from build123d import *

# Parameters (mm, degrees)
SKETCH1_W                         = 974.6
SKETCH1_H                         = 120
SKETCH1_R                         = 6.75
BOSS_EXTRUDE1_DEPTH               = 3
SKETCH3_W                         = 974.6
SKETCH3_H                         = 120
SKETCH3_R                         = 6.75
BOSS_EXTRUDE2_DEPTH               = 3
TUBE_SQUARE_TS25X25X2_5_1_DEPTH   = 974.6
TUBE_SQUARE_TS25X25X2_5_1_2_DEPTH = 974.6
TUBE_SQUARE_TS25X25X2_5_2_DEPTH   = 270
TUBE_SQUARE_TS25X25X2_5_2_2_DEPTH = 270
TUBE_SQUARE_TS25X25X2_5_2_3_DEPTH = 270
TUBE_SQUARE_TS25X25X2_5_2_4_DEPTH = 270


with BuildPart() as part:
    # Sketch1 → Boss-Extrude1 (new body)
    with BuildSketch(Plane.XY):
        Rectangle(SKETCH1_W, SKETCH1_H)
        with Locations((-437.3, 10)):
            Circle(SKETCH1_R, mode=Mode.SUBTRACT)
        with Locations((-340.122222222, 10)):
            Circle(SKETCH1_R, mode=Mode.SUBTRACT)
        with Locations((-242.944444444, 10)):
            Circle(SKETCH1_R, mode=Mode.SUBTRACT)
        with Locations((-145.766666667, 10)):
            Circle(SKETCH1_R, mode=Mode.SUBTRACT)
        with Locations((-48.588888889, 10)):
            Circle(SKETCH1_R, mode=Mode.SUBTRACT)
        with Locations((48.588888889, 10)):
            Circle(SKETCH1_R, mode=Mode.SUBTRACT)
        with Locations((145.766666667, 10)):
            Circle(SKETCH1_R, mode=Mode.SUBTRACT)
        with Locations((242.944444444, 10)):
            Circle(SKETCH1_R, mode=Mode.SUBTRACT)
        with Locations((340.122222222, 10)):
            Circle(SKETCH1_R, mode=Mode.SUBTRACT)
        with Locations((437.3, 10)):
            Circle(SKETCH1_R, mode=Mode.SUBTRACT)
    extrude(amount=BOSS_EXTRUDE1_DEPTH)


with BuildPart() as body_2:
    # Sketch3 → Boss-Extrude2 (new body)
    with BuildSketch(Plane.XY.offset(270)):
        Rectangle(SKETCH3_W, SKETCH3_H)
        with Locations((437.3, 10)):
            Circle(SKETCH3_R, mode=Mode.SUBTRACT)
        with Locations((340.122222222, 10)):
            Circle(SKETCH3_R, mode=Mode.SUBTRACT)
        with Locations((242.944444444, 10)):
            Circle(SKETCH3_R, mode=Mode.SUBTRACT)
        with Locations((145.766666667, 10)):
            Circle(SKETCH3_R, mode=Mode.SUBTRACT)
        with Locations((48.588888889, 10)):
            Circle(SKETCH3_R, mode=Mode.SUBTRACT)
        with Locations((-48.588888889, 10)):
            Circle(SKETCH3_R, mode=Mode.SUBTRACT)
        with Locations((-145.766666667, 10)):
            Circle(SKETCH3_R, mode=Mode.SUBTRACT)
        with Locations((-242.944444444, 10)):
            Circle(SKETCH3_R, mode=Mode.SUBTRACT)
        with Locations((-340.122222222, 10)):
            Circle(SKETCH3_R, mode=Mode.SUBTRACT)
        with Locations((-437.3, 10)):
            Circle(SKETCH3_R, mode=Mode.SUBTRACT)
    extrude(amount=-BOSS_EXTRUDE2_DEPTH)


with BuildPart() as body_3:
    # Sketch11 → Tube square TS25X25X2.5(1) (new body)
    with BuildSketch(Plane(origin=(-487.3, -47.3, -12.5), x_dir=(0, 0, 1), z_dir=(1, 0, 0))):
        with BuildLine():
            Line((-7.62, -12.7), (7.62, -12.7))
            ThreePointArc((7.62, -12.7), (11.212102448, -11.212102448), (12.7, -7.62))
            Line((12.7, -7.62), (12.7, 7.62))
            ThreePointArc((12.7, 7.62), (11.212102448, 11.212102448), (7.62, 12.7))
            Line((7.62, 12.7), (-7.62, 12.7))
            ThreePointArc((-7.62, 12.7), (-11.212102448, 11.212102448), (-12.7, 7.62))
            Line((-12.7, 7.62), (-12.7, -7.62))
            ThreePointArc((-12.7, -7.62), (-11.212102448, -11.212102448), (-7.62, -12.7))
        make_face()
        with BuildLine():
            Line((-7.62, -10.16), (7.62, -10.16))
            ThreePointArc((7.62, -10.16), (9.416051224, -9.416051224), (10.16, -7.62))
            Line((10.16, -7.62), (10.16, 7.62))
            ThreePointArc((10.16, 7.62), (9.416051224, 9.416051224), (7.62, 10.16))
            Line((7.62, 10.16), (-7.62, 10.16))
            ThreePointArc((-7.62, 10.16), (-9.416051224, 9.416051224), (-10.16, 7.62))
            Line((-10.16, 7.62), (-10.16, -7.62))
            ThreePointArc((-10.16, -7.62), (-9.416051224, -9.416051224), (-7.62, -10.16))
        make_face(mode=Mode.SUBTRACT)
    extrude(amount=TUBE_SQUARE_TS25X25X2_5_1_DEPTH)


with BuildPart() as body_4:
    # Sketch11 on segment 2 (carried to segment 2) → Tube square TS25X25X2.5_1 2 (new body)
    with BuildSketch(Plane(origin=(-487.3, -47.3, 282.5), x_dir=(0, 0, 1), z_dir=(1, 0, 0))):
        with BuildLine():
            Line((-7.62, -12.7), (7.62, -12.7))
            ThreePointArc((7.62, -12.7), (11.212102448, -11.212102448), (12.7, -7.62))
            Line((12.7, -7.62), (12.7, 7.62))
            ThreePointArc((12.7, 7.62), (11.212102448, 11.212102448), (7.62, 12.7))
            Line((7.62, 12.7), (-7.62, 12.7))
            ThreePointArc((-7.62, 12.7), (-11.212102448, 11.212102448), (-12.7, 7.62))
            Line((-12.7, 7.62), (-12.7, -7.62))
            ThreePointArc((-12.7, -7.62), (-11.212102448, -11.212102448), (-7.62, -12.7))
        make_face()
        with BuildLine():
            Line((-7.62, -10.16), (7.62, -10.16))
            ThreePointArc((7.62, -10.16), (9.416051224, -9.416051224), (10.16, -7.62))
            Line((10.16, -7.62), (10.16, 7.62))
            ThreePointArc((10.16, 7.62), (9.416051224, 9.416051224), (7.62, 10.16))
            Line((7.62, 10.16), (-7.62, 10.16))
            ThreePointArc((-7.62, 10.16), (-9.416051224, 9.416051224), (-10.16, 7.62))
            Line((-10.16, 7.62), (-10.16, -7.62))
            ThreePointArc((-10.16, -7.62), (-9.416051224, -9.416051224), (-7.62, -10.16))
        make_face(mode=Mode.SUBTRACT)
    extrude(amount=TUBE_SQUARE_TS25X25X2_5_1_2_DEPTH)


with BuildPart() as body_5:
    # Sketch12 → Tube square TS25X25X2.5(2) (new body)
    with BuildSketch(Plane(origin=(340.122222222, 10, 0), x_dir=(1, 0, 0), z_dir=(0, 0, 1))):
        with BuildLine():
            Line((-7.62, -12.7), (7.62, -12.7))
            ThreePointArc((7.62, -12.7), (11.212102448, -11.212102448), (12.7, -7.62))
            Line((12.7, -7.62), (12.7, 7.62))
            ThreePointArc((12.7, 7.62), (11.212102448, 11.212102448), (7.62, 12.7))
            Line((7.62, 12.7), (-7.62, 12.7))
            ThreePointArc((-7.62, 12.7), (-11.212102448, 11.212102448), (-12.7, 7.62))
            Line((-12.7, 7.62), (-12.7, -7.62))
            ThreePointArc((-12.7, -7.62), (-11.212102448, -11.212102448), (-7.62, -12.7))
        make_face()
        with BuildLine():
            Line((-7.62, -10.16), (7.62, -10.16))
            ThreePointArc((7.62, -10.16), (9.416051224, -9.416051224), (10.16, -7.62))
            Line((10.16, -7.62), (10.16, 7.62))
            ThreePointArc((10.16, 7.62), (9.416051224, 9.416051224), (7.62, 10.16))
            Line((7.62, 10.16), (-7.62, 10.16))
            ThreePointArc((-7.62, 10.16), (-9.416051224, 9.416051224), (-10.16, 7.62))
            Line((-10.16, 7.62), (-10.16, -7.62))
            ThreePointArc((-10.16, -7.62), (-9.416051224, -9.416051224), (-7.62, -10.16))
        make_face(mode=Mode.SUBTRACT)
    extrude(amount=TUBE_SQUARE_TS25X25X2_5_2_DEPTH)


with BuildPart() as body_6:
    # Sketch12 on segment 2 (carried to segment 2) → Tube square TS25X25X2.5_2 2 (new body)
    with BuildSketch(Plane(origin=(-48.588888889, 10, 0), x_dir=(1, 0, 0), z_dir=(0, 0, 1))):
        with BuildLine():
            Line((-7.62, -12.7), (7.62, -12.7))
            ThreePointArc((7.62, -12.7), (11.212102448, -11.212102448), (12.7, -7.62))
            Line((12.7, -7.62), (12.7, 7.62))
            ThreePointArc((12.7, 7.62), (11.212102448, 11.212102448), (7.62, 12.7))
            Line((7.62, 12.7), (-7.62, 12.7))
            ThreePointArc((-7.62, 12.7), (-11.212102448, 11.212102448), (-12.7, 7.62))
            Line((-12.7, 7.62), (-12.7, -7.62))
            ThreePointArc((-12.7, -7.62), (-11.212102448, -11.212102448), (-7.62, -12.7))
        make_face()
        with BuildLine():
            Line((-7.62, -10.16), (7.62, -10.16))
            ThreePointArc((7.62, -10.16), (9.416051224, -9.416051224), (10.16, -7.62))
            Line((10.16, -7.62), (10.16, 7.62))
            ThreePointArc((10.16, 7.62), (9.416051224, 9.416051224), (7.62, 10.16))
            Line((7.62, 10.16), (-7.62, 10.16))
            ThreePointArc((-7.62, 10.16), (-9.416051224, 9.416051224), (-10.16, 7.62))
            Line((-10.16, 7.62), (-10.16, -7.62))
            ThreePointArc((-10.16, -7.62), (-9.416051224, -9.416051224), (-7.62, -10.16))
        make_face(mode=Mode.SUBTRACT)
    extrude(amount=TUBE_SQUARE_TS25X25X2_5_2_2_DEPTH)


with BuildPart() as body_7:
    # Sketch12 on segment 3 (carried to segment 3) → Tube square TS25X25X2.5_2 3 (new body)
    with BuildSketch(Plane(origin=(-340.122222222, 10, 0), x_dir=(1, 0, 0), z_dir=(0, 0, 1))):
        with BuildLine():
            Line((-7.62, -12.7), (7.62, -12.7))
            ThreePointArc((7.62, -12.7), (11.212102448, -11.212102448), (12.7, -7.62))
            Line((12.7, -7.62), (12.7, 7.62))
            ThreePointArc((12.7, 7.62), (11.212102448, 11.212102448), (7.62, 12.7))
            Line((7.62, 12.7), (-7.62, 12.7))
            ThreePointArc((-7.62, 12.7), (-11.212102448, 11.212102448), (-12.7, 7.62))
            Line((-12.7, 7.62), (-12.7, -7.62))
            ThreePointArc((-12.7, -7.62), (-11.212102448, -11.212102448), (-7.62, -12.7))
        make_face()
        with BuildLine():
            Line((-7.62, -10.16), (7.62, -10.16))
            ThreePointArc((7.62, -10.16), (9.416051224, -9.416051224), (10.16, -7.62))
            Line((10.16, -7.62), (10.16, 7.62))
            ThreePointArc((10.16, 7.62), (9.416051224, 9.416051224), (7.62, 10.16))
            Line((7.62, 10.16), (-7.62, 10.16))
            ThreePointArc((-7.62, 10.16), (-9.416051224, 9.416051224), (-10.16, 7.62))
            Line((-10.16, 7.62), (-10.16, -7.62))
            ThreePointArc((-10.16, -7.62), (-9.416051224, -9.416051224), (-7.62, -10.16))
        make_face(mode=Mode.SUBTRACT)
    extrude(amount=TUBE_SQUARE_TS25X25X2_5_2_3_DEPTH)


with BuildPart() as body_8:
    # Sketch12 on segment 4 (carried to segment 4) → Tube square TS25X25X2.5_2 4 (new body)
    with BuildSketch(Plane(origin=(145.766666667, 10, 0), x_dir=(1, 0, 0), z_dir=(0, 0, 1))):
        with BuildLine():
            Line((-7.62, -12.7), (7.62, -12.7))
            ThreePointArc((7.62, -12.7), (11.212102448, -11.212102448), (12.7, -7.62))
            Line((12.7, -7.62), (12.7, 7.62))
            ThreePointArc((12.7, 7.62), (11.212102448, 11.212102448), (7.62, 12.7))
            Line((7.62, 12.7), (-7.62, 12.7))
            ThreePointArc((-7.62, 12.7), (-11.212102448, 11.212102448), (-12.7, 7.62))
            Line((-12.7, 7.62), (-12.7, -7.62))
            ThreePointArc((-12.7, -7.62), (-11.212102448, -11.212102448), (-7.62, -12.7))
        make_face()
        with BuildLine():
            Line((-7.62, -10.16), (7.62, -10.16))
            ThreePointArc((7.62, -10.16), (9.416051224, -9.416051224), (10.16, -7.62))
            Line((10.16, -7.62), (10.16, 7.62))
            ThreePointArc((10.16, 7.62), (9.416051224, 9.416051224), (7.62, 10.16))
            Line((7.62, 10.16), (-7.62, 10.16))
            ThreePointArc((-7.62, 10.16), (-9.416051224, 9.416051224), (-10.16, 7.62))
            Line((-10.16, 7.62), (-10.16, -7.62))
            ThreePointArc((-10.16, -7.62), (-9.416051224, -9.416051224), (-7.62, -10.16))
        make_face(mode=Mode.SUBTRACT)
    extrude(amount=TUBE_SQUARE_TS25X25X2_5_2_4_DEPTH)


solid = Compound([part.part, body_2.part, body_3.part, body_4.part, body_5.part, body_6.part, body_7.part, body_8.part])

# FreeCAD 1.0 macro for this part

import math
import FreeCAD as App
import Part
import Sketcher
from FreeCAD import Vector
Q = App.Units.Quantity

doc = App.newDocument("Part")
body = doc.addObject("PartDesign::Body", "Body")

# Sketch on XY plane
sketch1 = body.newObject("Sketcher::SketchObject", "Sketch")
sketch1.AttachmentSupport = (doc.getObject("XY_Plane"), [""])
sketch1.MapMode = "FlatFace"
sketch1.addGeometry([
    Part.LineSegment(Vector(-487, 60, 0), Vector(-487, -60, 0)),  # 0
    Part.LineSegment(Vector(-487, -60, 0), Vector(487, -60, 0)),  # 1
    Part.LineSegment(Vector(487, -60, 0), Vector(487, 60, 0)),  # 2
    Part.LineSegment(Vector(487, 60, 0), Vector(-487, 60, 0)),  # 3
    Part.Circle(Vector(-437, 10, 0), Vector(0, 0, 1), 7),  # 4
    Part.Circle(Vector(-340, 10, 0), Vector(0, 0, 1), 7),  # 5
    Part.Circle(Vector(-243, 10, 0), Vector(0, 0, 1), 7),  # 6
    Part.Circle(Vector(-146, 10, 0), Vector(0, 0, 1), 7),  # 7
    Part.Circle(Vector(-49, 10, 0), Vector(0, 0, 1), 7),  # 8
    Part.Circle(Vector(49, 10, 0), Vector(0, 0, 1), 7),  # 9
    Part.Circle(Vector(146, 10, 0), Vector(0, 0, 1), 7),  # 10
    Part.Circle(Vector(243, 10, 0), Vector(0, 0, 1), 7),  # 11
    Part.Circle(Vector(340, 10, 0), Vector(0, 0, 1), 7),  # 12
    Part.Circle(Vector(437, 10, 0), Vector(0, 0, 1), 7),  # 13
], False)
sketch1.addConstraint([
    Sketcher.Constraint("Coincident", 0, 2, 1, 1),
    Sketcher.Constraint("Coincident", 1, 2, 2, 1),
    Sketcher.Constraint("Coincident", 2, 2, 3, 1),
    Sketcher.Constraint("Coincident", 3, 2, 0, 1),
    Sketcher.Constraint("Vertical", 0),
    Sketcher.Constraint("Horizontal", 1),
    Sketcher.Constraint("Vertical", 2),
    Sketcher.Constraint("Horizontal", 3),
    Sketcher.Constraint("Equal", 4, 5),
    Sketcher.Constraint("Equal", 5, 6),
    Sketcher.Constraint("Equal", 6, 7),
    Sketcher.Constraint("Equal", 7, 8),
    Sketcher.Constraint("Equal", 8, 9),
    Sketcher.Constraint("Equal", 9, 10),
    Sketcher.Constraint("Equal", 10, 11),
    Sketcher.Constraint("Equal", 11, 12),
    Sketcher.Constraint("Equal", 12, 13),
    Sketcher.Constraint("Symmetric", 0, 2, 2, 2, -1, 1),
    Sketcher.Constraint("Symmetric", 8, 3, 9, 3, -2),
    Sketcher.Constraint("Symmetric", 7, 3, 10, 3, -2),
    Sketcher.Constraint("Symmetric", 6, 3, 11, 3, -2),
    Sketcher.Constraint("Symmetric", 5, 3, 12, 3, -2),
    Sketcher.Constraint("Symmetric", 4, 3, 13, 3, -2),
    Sketcher.Constraint("Horizontal", 4, 3, 5, 3),
    Sketcher.Constraint("Horizontal", 5, 3, 6, 3),
    Sketcher.Constraint("Horizontal", 6, 3, 7, 3),
    Sketcher.Constraint("Horizontal", 7, 3, 8, 3),
    Sketcher.Constraint("Diameter", 4, Q("13.5 mm")),
    Sketcher.Constraint("DistanceY", 0, 2, 0, 1, Q("120 mm")),
    Sketcher.Constraint("DistanceX", 1, 1, 1, 2, Q("974.6 mm")),
    Sketcher.Constraint("DistanceY", -1, 1, 4, 3, Q("10 mm")),
    Sketcher.Constraint("DistanceX", 0, 2, 4, 3, Q("50 mm")),
    Sketcher.Constraint("DistanceX", 8, 3, -1, 1, Q("48.588889 mm")),
    Sketcher.Constraint("DistanceX", 5, 3, 9, 3, Q("388.711111 mm")),
    Sketcher.Constraint("DistanceX", 6, 3, 10, 3, Q("388.711111 mm")),
    Sketcher.Constraint("DistanceX", 5, 3, 10, 3, Q("485.888889 mm")),
])
pad1 = body.newObject("PartDesign::Pad", "Pad")
pad1.Profile = sketch1
pad1.Length = 3
body2 = doc.addObject("PartDesign::Body", "Body001")

# Sketch on XY plane
sketch2 = body2.newObject("Sketcher::SketchObject", "Sketch001")
sketch2.AttachmentSupport = (doc.getObject("XY_Plane001"), [""])
sketch2.MapMode = "FlatFace"
sketch2.AttachmentOffset = App.Placement(Vector(0, 0, 270), App.Rotation())
sketch2.addGeometry([
    Part.LineSegment(Vector(-487, 60, 0), Vector(-487, -60, 0)),  # 0
    Part.LineSegment(Vector(-487, -60, 0), Vector(487, -60, 0)),  # 1
    Part.LineSegment(Vector(487, -60, 0), Vector(487, 60, 0)),  # 2
    Part.LineSegment(Vector(487, 60, 0), Vector(-487, 60, 0)),  # 3
    Part.Circle(Vector(-437, 10, 0), Vector(0, 0, 1), 7),  # 4
    Part.Circle(Vector(-340, 10, 0), Vector(0, 0, 1), 7),  # 5
    Part.Circle(Vector(-243, 10, 0), Vector(0, 0, 1), 7),  # 6
    Part.Circle(Vector(-146, 10, 0), Vector(0, 0, 1), 7),  # 7
    Part.Circle(Vector(-49, 10, 0), Vector(0, 0, 1), 7),  # 8
    Part.Circle(Vector(49, 10, 0), Vector(0, 0, 1), 7),  # 9
    Part.Circle(Vector(146, 10, 0), Vector(0, 0, 1), 7),  # 10
    Part.Circle(Vector(243, 10, 0), Vector(0, 0, 1), 7),  # 11
    Part.Circle(Vector(340, 10, 0), Vector(0, 0, 1), 7),  # 12
    Part.Circle(Vector(437, 10, 0), Vector(0, 0, 1), 7),  # 13
], False)
sketch2.addConstraint([
    Sketcher.Constraint("Coincident", 0, 2, 1, 1),
    Sketcher.Constraint("Coincident", 1, 2, 2, 1),
    Sketcher.Constraint("Coincident", 2, 2, 3, 1),
    Sketcher.Constraint("Coincident", 3, 2, 0, 1),
    Sketcher.Constraint("Vertical", 0),
    Sketcher.Constraint("Horizontal", 1),
    Sketcher.Constraint("Vertical", 2),
    Sketcher.Constraint("Horizontal", 3),
    Sketcher.Constraint("Equal", 4, 5),
    Sketcher.Constraint("Equal", 5, 6),
    Sketcher.Constraint("Equal", 6, 7),
    Sketcher.Constraint("Equal", 7, 8),
    Sketcher.Constraint("Equal", 8, 9),
    Sketcher.Constraint("Equal", 9, 10),
    Sketcher.Constraint("Equal", 10, 11),
    Sketcher.Constraint("Equal", 11, 12),
    Sketcher.Constraint("Equal", 12, 13),
    Sketcher.Constraint("Symmetric", 0, 2, 2, 2, -1, 1),
    Sketcher.Constraint("Symmetric", 8, 3, 9, 3, -2),
    Sketcher.Constraint("Symmetric", 7, 3, 10, 3, -2),
    Sketcher.Constraint("Symmetric", 6, 3, 11, 3, -2),
    Sketcher.Constraint("Symmetric", 5, 3, 12, 3, -2),
    Sketcher.Constraint("Symmetric", 4, 3, 13, 3, -2),
    Sketcher.Constraint("Horizontal", 4, 3, 5, 3),
    Sketcher.Constraint("Horizontal", 5, 3, 6, 3),
    Sketcher.Constraint("Horizontal", 6, 3, 7, 3),
    Sketcher.Constraint("Horizontal", 7, 3, 8, 3),
    Sketcher.Constraint("Diameter", 4, Q("13.5 mm")),
    Sketcher.Constraint("DistanceY", 0, 2, 0, 1, Q("120 mm")),
    Sketcher.Constraint("DistanceX", 1, 1, 1, 2, Q("974.6 mm")),
    Sketcher.Constraint("DistanceY", -1, 1, 4, 3, Q("10 mm")),
    Sketcher.Constraint("DistanceX", 0, 2, 4, 3, Q("50 mm")),
    Sketcher.Constraint("DistanceX", 8, 3, -1, 1, Q("48.588889 mm")),
    Sketcher.Constraint("DistanceX", 5, 3, 9, 3, Q("388.711111 mm")),
    Sketcher.Constraint("DistanceX", 6, 3, 10, 3, Q("388.711111 mm")),
    Sketcher.Constraint("DistanceX", 5, 3, 10, 3, Q("485.888889 mm")),
])
pad2 = body2.newObject("PartDesign::Pad", "Pad001")
pad2.Profile = sketch2
pad2.Length = 3
pad2.Reversed = True
body3 = doc.addObject("PartDesign::Body", "Body002")

# Sketch on YZ plane
sketch3 = body3.newObject("Sketcher::SketchObject", "Sketch002")
sketch3.AttachmentSupport = (doc.getObject("YZ_Plane002"), [""])
sketch3.MapMode = "FlatFace"
sketch3.AttachmentOffset = App.Placement(Vector(0, 0, -487.3), App.Rotation())
sketch3.addGeometry([
    Part.LineSegment(Vector(-34.6, -20.1, 0), Vector(-34.6, -4.9, 0)),  # 0
    Part.ArcOfCircle(Part.Circle(Vector(-39.7, -4.9, 0), Vector(0, 0, 1), 5.1), math.radians(0), math.radians(90)),  # 1
    Part.LineSegment(Vector(-39.7, 0.2, 0), Vector(-54.9, 0.2, 0)),  # 2
    Part.ArcOfCircle(Part.Circle(Vector(-54.9, -4.9, 0), Vector(0, 0, 1), 5.1), math.radians(90), math.radians(180)),  # 3
    Part.LineSegment(Vector(-60, -4.9, 0), Vector(-60, -20.1, 0)),  # 4
    Part.ArcOfCircle(Part.Circle(Vector(-54.9, -20.1, 0), Vector(0, 0, 1), 5.1), math.radians(-180), math.radians(-90)),  # 5
    Part.LineSegment(Vector(-54.9, -25.2, 0), Vector(-39.7, -25.2, 0)),  # 6
    Part.ArcOfCircle(Part.Circle(Vector(-39.7, -20.1, 0), Vector(0, 0, 1), 5.1), math.radians(-90), math.radians(0)),  # 7
    Part.LineSegment(Vector(-37.1, -4.9, 0), Vector(-37.1, -20.1, 0)),  # 8
    Part.ArcOfCircle(Part.Circle(Vector(-39.7, -20.1, 0), Vector(0, 0, 1), 2.5), math.radians(-90), math.radians(0)),  # 9
    Part.LineSegment(Vector(-39.7, -22.7, 0), Vector(-54.9, -22.7, 0)),  # 10
    Part.ArcOfCircle(Part.Circle(Vector(-54.9, -20.1, 0), Vector(0, 0, 1), 2.5), math.radians(-180), math.radians(-90)),  # 11
    Part.LineSegment(Vector(-57.5, -20.1, 0), Vector(-57.5, -4.9, 0)),  # 12
    Part.ArcOfCircle(Part.Circle(Vector(-54.9, -4.9, 0), Vector(0, 0, 1), 2.5), math.radians(90), math.radians(180)),  # 13
    Part.LineSegment(Vector(-54.9, -2.3, 0), Vector(-39.7, -2.3, 0)),  # 14
    Part.ArcOfCircle(Part.Circle(Vector(-39.7, -4.9, 0), Vector(0, 0, 1), 2.5), math.radians(0), math.radians(90)),  # 15
], False)
sketch3.addConstraint([
    Sketcher.Constraint("Tangent", 0, 2, 1, 1),
    Sketcher.Constraint("Tangent", 1, 2, 2, 1),
    Sketcher.Constraint("Tangent", 2, 2, 3, 1),
    Sketcher.Constraint("Tangent", 3, 2, 4, 1),
    Sketcher.Constraint("Tangent", 4, 2, 5, 1),
    Sketcher.Constraint("Tangent", 5, 2, 6, 1),
    Sketcher.Constraint("Tangent", 6, 2, 7, 1),
    Sketcher.Constraint("Tangent", 7, 2, 0, 1),
    Sketcher.Constraint("Tangent", 8, 2, 9, 2),
    Sketcher.Constraint("Tangent", 9, 1, 10, 1),
    Sketcher.Constraint("Tangent", 10, 2, 11, 2),
    Sketcher.Constraint("Tangent", 11, 1, 12, 1),
    Sketcher.Constraint("Tangent", 12, 2, 13, 2),
    Sketcher.Constraint("Tangent", 13, 1, 14, 1),
    Sketcher.Constraint("Tangent", 14, 2, 15, 2),
    Sketcher.Constraint("Tangent", 15, 1, 8, 1),
    Sketcher.Constraint("Vertical", 0),
    Sketcher.Constraint("Horizontal", 2),
    Sketcher.Constraint("Vertical", 4),
    Sketcher.Constraint("Horizontal", 6),
    Sketcher.Constraint("Vertical", 8),
    Sketcher.Constraint("Horizontal", 10),
    Sketcher.Constraint("Vertical", 12),
    Sketcher.Constraint("Horizontal", 14),
    Sketcher.Constraint("Coincident", 9, 3, 7, 3),
    Sketcher.Constraint("Coincident", 11, 3, 5, 3),
    Sketcher.Constraint("Coincident", 13, 3, 3, 3),
    Sketcher.Constraint("Equal", 1, 3),
    Sketcher.Constraint("Equal", 3, 5),
    Sketcher.Constraint("Equal", 5, 7),
    Sketcher.Constraint("Equal", 13, 15),
    Sketcher.Constraint("Equal", 14, 0),
    Sketcher.Constraint("Radius", 1, Q("5.08 mm")),
    Sketcher.Constraint("Radius", 9, Q("2.54 mm")),
    Sketcher.Constraint("DistanceX", 3, 2, -1, 1, Q("60 mm")),
    Sketcher.Constraint("DistanceX", 2, 2, 2, 1, Q("15.24 mm")),
    Sketcher.Constraint("DistanceY", -1, 1, 1, 2, Q("0.2 mm")),
])
pad3 = body3.newObject("PartDesign::Pad", "Pad002")
pad3.Profile = sketch3
pad3.Length = 974.6
body4 = doc.addObject("PartDesign::Body", "Body003")

# Sketch on YZ plane
sketch4 = body4.newObject("Sketcher::SketchObject", "Sketch003")
sketch4.AttachmentSupport = (doc.getObject("YZ_Plane003"), [""])
sketch4.MapMode = "FlatFace"
sketch4.AttachmentOffset = App.Placement(Vector(0, 0, -487.3), App.Rotation())
sketch4.addGeometry([
    Part.LineSegment(Vector(-34.6, 274.9, 0), Vector(-34.6, 290.1, 0)),  # 0
    Part.ArcOfCircle(Part.Circle(Vector(-39.7, 290.1, 0), Vector(0, 0, 1), 5.1), math.radians(0), math.radians(90)),  # 1
    Part.LineSegment(Vector(-39.7, 295.2, 0), Vector(-54.9, 295.2, 0)),  # 2
    Part.ArcOfCircle(Part.Circle(Vector(-54.9, 290.1, 0), Vector(0, 0, 1), 5.1), math.radians(90), math.radians(180)),  # 3
    Part.LineSegment(Vector(-60, 290.1, 0), Vector(-60, 274.9, 0)),  # 4
    Part.ArcOfCircle(Part.Circle(Vector(-54.9, 274.9, 0), Vector(0, 0, 1), 5.1), math.radians(-180), math.radians(-90)),  # 5
    Part.LineSegment(Vector(-54.9, 269.8, 0), Vector(-39.7, 269.8, 0)),  # 6
    Part.ArcOfCircle(Part.Circle(Vector(-39.7, 274.9, 0), Vector(0, 0, 1), 5.1), math.radians(-90), math.radians(0)),  # 7
    Part.LineSegment(Vector(-37.1, 290.1, 0), Vector(-37.1, 274.9, 0)),  # 8
    Part.ArcOfCircle(Part.Circle(Vector(-39.7, 274.9, 0), Vector(0, 0, 1), 2.5), math.radians(-90), math.radians(0)),  # 9
    Part.LineSegment(Vector(-39.7, 272.3, 0), Vector(-54.9, 272.3, 0)),  # 10
    Part.ArcOfCircle(Part.Circle(Vector(-54.9, 274.9, 0), Vector(0, 0, 1), 2.5), math.radians(-180), math.radians(-90)),  # 11
    Part.LineSegment(Vector(-57.5, 274.9, 0), Vector(-57.5, 290.1, 0)),  # 12
    Part.ArcOfCircle(Part.Circle(Vector(-54.9, 290.1, 0), Vector(0, 0, 1), 2.5), math.radians(90), math.radians(180)),  # 13
    Part.LineSegment(Vector(-54.9, 292.7, 0), Vector(-39.7, 292.7, 0)),  # 14
    Part.ArcOfCircle(Part.Circle(Vector(-39.7, 290.1, 0), Vector(0, 0, 1), 2.5), math.radians(0), math.radians(90)),  # 15
], False)
sketch4.addConstraint([
    Sketcher.Constraint("Tangent", 0, 2, 1, 1),
    Sketcher.Constraint("Tangent", 1, 2, 2, 1),
    Sketcher.Constraint("Tangent", 2, 2, 3, 1),
    Sketcher.Constraint("Tangent", 3, 2, 4, 1),
    Sketcher.Constraint("Tangent", 4, 2, 5, 1),
    Sketcher.Constraint("Tangent", 5, 2, 6, 1),
    Sketcher.Constraint("Tangent", 6, 2, 7, 1),
    Sketcher.Constraint("Tangent", 7, 2, 0, 1),
    Sketcher.Constraint("Tangent", 8, 2, 9, 2),
    Sketcher.Constraint("Tangent", 9, 1, 10, 1),
    Sketcher.Constraint("Tangent", 10, 2, 11, 2),
    Sketcher.Constraint("Tangent", 11, 1, 12, 1),
    Sketcher.Constraint("Tangent", 12, 2, 13, 2),
    Sketcher.Constraint("Tangent", 13, 1, 14, 1),
    Sketcher.Constraint("Tangent", 14, 2, 15, 2),
    Sketcher.Constraint("Tangent", 15, 1, 8, 1),
    Sketcher.Constraint("Vertical", 0),
    Sketcher.Constraint("Horizontal", 2),
    Sketcher.Constraint("Vertical", 4),
    Sketcher.Constraint("Horizontal", 6),
    Sketcher.Constraint("Vertical", 8),
    Sketcher.Constraint("Horizontal", 10),
    Sketcher.Constraint("Vertical", 12),
    Sketcher.Constraint("Horizontal", 14),
    Sketcher.Constraint("Coincident", 9, 3, 7, 3),
    Sketcher.Constraint("Coincident", 11, 3, 5, 3),
    Sketcher.Constraint("Coincident", 13, 3, 3, 3),
    Sketcher.Constraint("Equal", 1, 3),
    Sketcher.Constraint("Equal", 3, 5),
    Sketcher.Constraint("Equal", 5, 7),
    Sketcher.Constraint("Equal", 13, 15),
    Sketcher.Constraint("Equal", 14, 0),
    Sketcher.Constraint("Radius", 1, Q("5.08 mm")),
    Sketcher.Constraint("Radius", 9, Q("2.54 mm")),
    Sketcher.Constraint("DistanceX", 3, 2, -1, 1, Q("60 mm")),
    Sketcher.Constraint("DistanceX", 2, 2, 2, 1, Q("15.24 mm")),
    Sketcher.Constraint("DistanceY", -1, 1, 1, 2, Q("295.2 mm")),
])
pad4 = body4.newObject("PartDesign::Pad", "Pad003")
pad4.Profile = sketch4
pad4.Length = 974.6
body5 = doc.addObject("PartDesign::Body", "Body004")

# Sketch on XY plane
sketch5 = body5.newObject("Sketcher::SketchObject", "Sketch004")
sketch5.AttachmentSupport = (doc.getObject("XY_Plane004"), [""])
sketch5.MapMode = "FlatFace"
sketch5.addGeometry([
    Part.LineSegment(Vector(332.5, -2.7, 0), Vector(347.7, -2.7, 0)),  # 0
    Part.ArcOfCircle(Part.Circle(Vector(347.7, 2.4, 0), Vector(0, 0, 1), 5.1), math.radians(-90), math.radians(0)),  # 1
    Part.LineSegment(Vector(352.8, 2.4, 0), Vector(352.8, 17.6, 0)),  # 2
    Part.ArcOfCircle(Part.Circle(Vector(347.7, 17.6, 0), Vector(0, 0, 1), 5.1), math.radians(0), math.radians(90)),  # 3
    Part.LineSegment(Vector(347.7, 22.7, 0), Vector(332.5, 22.7, 0)),  # 4
    Part.ArcOfCircle(Part.Circle(Vector(332.5, 17.6, 0), Vector(0, 0, 1), 5.1), math.radians(90), math.radians(180)),  # 5
    Part.LineSegment(Vector(327.4, 17.6, 0), Vector(327.4, 2.4, 0)),  # 6
    Part.ArcOfCircle(Part.Circle(Vector(332.5, 2.4, 0), Vector(0, 0, 1), 5.1), math.radians(-180), math.radians(-90)),  # 7
    Part.LineSegment(Vector(347.7, -0.2, 0), Vector(332.5, -0.2, 0)),  # 8
    Part.ArcOfCircle(Part.Circle(Vector(332.5, 2.4, 0), Vector(0, 0, 1), 2.5), math.radians(-180), math.radians(-90)),  # 9
    Part.LineSegment(Vector(330, 2.4, 0), Vector(330, 17.6, 0)),  # 10
    Part.ArcOfCircle(Part.Circle(Vector(332.5, 17.6, 0), Vector(0, 0, 1), 2.5), math.radians(90), math.radians(180)),  # 11
    Part.LineSegment(Vector(332.5, 20.2, 0), Vector(347.7, 20.2, 0)),  # 12
    Part.ArcOfCircle(Part.Circle(Vector(347.7, 17.6, 0), Vector(0, 0, 1), 2.5), math.radians(0), math.radians(90)),  # 13
    Part.LineSegment(Vector(350.3, 17.6, 0), Vector(350.3, 2.4, 0)),  # 14
    Part.ArcOfCircle(Part.Circle(Vector(347.7, 2.4, 0), Vector(0, 0, 1), 2.5), math.radians(-90), math.radians(0)),  # 15
], False)
sketch5.addConstraint([
    Sketcher.Constraint("Tangent", 0, 2, 1, 1),
    Sketcher.Constraint("Tangent", 1, 2, 2, 1),
    Sketcher.Constraint("Tangent", 2, 2, 3, 1),
    Sketcher.Constraint("Tangent", 3, 2, 4, 1),
    Sketcher.Constraint("Tangent", 4, 2, 5, 1),
    Sketcher.Constraint("Tangent", 5, 2, 6, 1),
    Sketcher.Constraint("Tangent", 6, 2, 7, 1),
    Sketcher.Constraint("Tangent", 7, 2, 0, 1),
    Sketcher.Constraint("Tangent", 8, 2, 9, 2),
    Sketcher.Constraint("Tangent", 9, 1, 10, 1),
    Sketcher.Constraint("Tangent", 10, 2, 11, 2),
    Sketcher.Constraint("Tangent", 11, 1, 12, 1),
    Sketcher.Constraint("Tangent", 12, 2, 13, 2),
    Sketcher.Constraint("Tangent", 13, 1, 14, 1),
    Sketcher.Constraint("Tangent", 14, 2, 15, 2),
    Sketcher.Constraint("Tangent", 15, 1, 8, 1),
    Sketcher.Constraint("Horizontal", 0),
    Sketcher.Constraint("Vertical", 2),
    Sketcher.Constraint("Horizontal", 4),
    Sketcher.Constraint("Vertical", 6),
    Sketcher.Constraint("Horizontal", 8),
    Sketcher.Constraint("Vertical", 10),
    Sketcher.Constraint("Horizontal", 12),
    Sketcher.Constraint("Vertical", 14),
    Sketcher.Constraint("Coincident", 9, 3, 7, 3),
    Sketcher.Constraint("Coincident", 11, 3, 5, 3),
    Sketcher.Constraint("Coincident", 13, 3, 3, 3),
    Sketcher.Constraint("Equal", 1, 3),
    Sketcher.Constraint("Equal", 3, 5),
    Sketcher.Constraint("Equal", 5, 7),
    Sketcher.Constraint("Equal", 13, 15),
    Sketcher.Constraint("Equal", 12, 2),
    Sketcher.Constraint("Radius", 1, Q("5.08 mm")),
    Sketcher.Constraint("Radius", 9, Q("2.54 mm")),
    Sketcher.Constraint("DistanceX", 0, 1, 0, 2, Q("15.24 mm")),
    Sketcher.Constraint("DistanceY", 0, 2, -1, 1, Q("2.7 mm")),
    Sketcher.Constraint("DistanceX", -1, 1, 1, 3, Q("347.742222 mm")),
])
pad5 = body5.newObject("PartDesign::Pad", "Pad004")
pad5.Profile = sketch5
pad5.Length = 270
body6 = doc.addObject("PartDesign::Body", "Body005")

# Sketch on XY plane
sketch6 = body6.newObject("Sketcher::SketchObject", "Sketch005")
sketch6.AttachmentSupport = (doc.getObject("XY_Plane005"), [""])
sketch6.MapMode = "FlatFace"
sketch6.addGeometry([
    Part.LineSegment(Vector(-56.2, -2.7, 0), Vector(-41, -2.7, 0)),  # 0
    Part.ArcOfCircle(Part.Circle(Vector(-41, 2.4, 0), Vector(0, 0, 1), 5.1), math.radians(-90), math.radians(0)),  # 1
    Part.LineSegment(Vector(-35.9, 2.4, 0), Vector(-35.9, 17.6, 0)),  # 2
    Part.ArcOfCircle(Part.Circle(Vector(-41, 17.6, 0), Vector(0, 0, 1), 5.1), math.radians(0), math.radians(90)),  # 3
    Part.LineSegment(Vector(-41, 22.7, 0), Vector(-56.2, 22.7, 0)),  # 4
    Part.ArcOfCircle(Part.Circle(Vector(-56.2, 17.6, 0), Vector(0, 0, 1), 5.1), math.radians(90), math.radians(180)),  # 5
    Part.LineSegment(Vector(-61.3, 17.6, 0), Vector(-61.3, 2.4, 0)),  # 6
    Part.ArcOfCircle(Part.Circle(Vector(-56.2, 2.4, 0), Vector(0, 0, 1), 5.1), math.radians(-180), math.radians(-90)),  # 7
    Part.LineSegment(Vector(-41, -0.2, 0), Vector(-56.2, -0.2, 0)),  # 8
    Part.ArcOfCircle(Part.Circle(Vector(-56.2, 2.4, 0), Vector(0, 0, 1), 2.5), math.radians(-180), math.radians(-90)),  # 9
    Part.LineSegment(Vector(-58.7, 2.4, 0), Vector(-58.7, 17.6, 0)),  # 10
    Part.ArcOfCircle(Part.Circle(Vector(-56.2, 17.6, 0), Vector(0, 0, 1), 2.5), math.radians(90), math.radians(180)),  # 11
    Part.LineSegment(Vector(-56.2, 20.2, 0), Vector(-41, 20.2, 0)),  # 12
    Part.ArcOfCircle(Part.Circle(Vector(-41, 17.6, 0), Vector(0, 0, 1), 2.5), math.radians(0), math.radians(90)),  # 13
    Part.LineSegment(Vector(-38.4, 17.6, 0), Vector(-38.4, 2.4, 0)),  # 14
    Part.ArcOfCircle(Part.Circle(Vector(-41, 2.4, 0), Vector(0, 0, 1), 2.5), math.radians(-90), math.radians(0)),  # 15
], False)
sketch6.addConstraint([
    Sketcher.Constraint("Tangent", 0, 2, 1, 1),
    Sketcher.Constraint("Tangent", 1, 2, 2, 1),
    Sketcher.Constraint("Tangent", 2, 2, 3, 1),
    Sketcher.Constraint("Tangent", 3, 2, 4, 1),
    Sketcher.Constraint("Tangent", 4, 2, 5, 1),
    Sketcher.Constraint("Tangent", 5, 2, 6, 1),
    Sketcher.Constraint("Tangent", 6, 2, 7, 1),
    Sketcher.Constraint("Tangent", 7, 2, 0, 1),
    Sketcher.Constraint("Tangent", 8, 2, 9, 2),
    Sketcher.Constraint("Tangent", 9, 1, 10, 1),
    Sketcher.Constraint("Tangent", 10, 2, 11, 2),
    Sketcher.Constraint("Tangent", 11, 1, 12, 1),
    Sketcher.Constraint("Tangent", 12, 2, 13, 2),
    Sketcher.Constraint("Tangent", 13, 1, 14, 1),
    Sketcher.Constraint("Tangent", 14, 2, 15, 2),
    Sketcher.Constraint("Tangent", 15, 1, 8, 1),
    Sketcher.Constraint("Horizontal", 0),
    Sketcher.Constraint("Vertical", 2),
    Sketcher.Constraint("Horizontal", 4),
    Sketcher.Constraint("Vertical", 6),
    Sketcher.Constraint("Horizontal", 8),
    Sketcher.Constraint("Vertical", 10),
    Sketcher.Constraint("Horizontal", 12),
    Sketcher.Constraint("Vertical", 14),
    Sketcher.Constraint("Coincident", 9, 3, 7, 3),
    Sketcher.Constraint("Coincident", 11, 3, 5, 3),
    Sketcher.Constraint("Coincident", 13, 3, 3, 3),
    Sketcher.Constraint("Equal", 1, 3),
    Sketcher.Constraint("Equal", 3, 5),
    Sketcher.Constraint("Equal", 5, 7),
    Sketcher.Constraint("Equal", 13, 15),
    Sketcher.Constraint("Equal", 12, 2),
    Sketcher.Constraint("Radius", 1, Q("5.08 mm")),
    Sketcher.Constraint("Radius", 9, Q("2.54 mm")),
    Sketcher.Constraint("DistanceX", 0, 1, 0, 2, Q("15.24 mm")),
    Sketcher.Constraint("DistanceY", 0, 2, -1, 1, Q("2.7 mm")),
    Sketcher.Constraint("DistanceX", 1, 3, -1, 1, Q("40.968889 mm")),
])
pad6 = body6.newObject("PartDesign::Pad", "Pad005")
pad6.Profile = sketch6
pad6.Length = 270
body7 = doc.addObject("PartDesign::Body", "Body006")

# Sketch on XY plane
sketch7 = body7.newObject("Sketcher::SketchObject", "Sketch006")
sketch7.AttachmentSupport = (doc.getObject("XY_Plane006"), [""])
sketch7.MapMode = "FlatFace"
sketch7.addGeometry([
    Part.LineSegment(Vector(-347.7, -2.7, 0), Vector(-332.5, -2.7, 0)),  # 0
    Part.ArcOfCircle(Part.Circle(Vector(-332.5, 2.4, 0), Vector(0, 0, 1), 5.1), math.radians(-90), math.radians(0)),  # 1
    Part.LineSegment(Vector(-327.4, 2.4, 0), Vector(-327.4, 17.6, 0)),  # 2
    Part.ArcOfCircle(Part.Circle(Vector(-332.5, 17.6, 0), Vector(0, 0, 1), 5.1), math.radians(0), math.radians(90)),  # 3
    Part.LineSegment(Vector(-332.5, 22.7, 0), Vector(-347.7, 22.7, 0)),  # 4
    Part.ArcOfCircle(Part.Circle(Vector(-347.7, 17.6, 0), Vector(0, 0, 1), 5.1), math.radians(90), math.radians(180)),  # 5
    Part.LineSegment(Vector(-352.8, 17.6, 0), Vector(-352.8, 2.4, 0)),  # 6
    Part.ArcOfCircle(Part.Circle(Vector(-347.7, 2.4, 0), Vector(0, 0, 1), 5.1), math.radians(-180), math.radians(-90)),  # 7
    Part.LineSegment(Vector(-332.5, -0.2, 0), Vector(-347.7, -0.2, 0)),  # 8
    Part.ArcOfCircle(Part.Circle(Vector(-347.7, 2.4, 0), Vector(0, 0, 1), 2.5), math.radians(-180), math.radians(-90)),  # 9
    Part.LineSegment(Vector(-350.3, 2.4, 0), Vector(-350.3, 17.6, 0)),  # 10
    Part.ArcOfCircle(Part.Circle(Vector(-347.7, 17.6, 0), Vector(0, 0, 1), 2.5), math.radians(90), math.radians(180)),  # 11
    Part.LineSegment(Vector(-347.7, 20.2, 0), Vector(-332.5, 20.2, 0)),  # 12
    Part.ArcOfCircle(Part.Circle(Vector(-332.5, 17.6, 0), Vector(0, 0, 1), 2.5), math.radians(0), math.radians(90)),  # 13
    Part.LineSegment(Vector(-330, 17.6, 0), Vector(-330, 2.4, 0)),  # 14
    Part.ArcOfCircle(Part.Circle(Vector(-332.5, 2.4, 0), Vector(0, 0, 1), 2.5), math.radians(-90), math.radians(0)),  # 15
], False)
sketch7.addConstraint([
    Sketcher.Constraint("Tangent", 0, 2, 1, 1),
    Sketcher.Constraint("Tangent", 1, 2, 2, 1),
    Sketcher.Constraint("Tangent", 2, 2, 3, 1),
    Sketcher.Constraint("Tangent", 3, 2, 4, 1),
    Sketcher.Constraint("Tangent", 4, 2, 5, 1),
    Sketcher.Constraint("Tangent", 5, 2, 6, 1),
    Sketcher.Constraint("Tangent", 6, 2, 7, 1),
    Sketcher.Constraint("Tangent", 7, 2, 0, 1),
    Sketcher.Constraint("Tangent", 8, 2, 9, 2),
    Sketcher.Constraint("Tangent", 9, 1, 10, 1),
    Sketcher.Constraint("Tangent", 10, 2, 11, 2),
    Sketcher.Constraint("Tangent", 11, 1, 12, 1),
    Sketcher.Constraint("Tangent", 12, 2, 13, 2),
    Sketcher.Constraint("Tangent", 13, 1, 14, 1),
    Sketcher.Constraint("Tangent", 14, 2, 15, 2),
    Sketcher.Constraint("Tangent", 15, 1, 8, 1),
    Sketcher.Constraint("Horizontal", 0),
    Sketcher.Constraint("Vertical", 2),
    Sketcher.Constraint("Horizontal", 4),
    Sketcher.Constraint("Vertical", 6),
    Sketcher.Constraint("Horizontal", 8),
    Sketcher.Constraint("Vertical", 10),
    Sketcher.Constraint("Horizontal", 12),
    Sketcher.Constraint("Vertical", 14),
    Sketcher.Constraint("Coincident", 9, 3, 7, 3),
    Sketcher.Constraint("Coincident", 11, 3, 5, 3),
    Sketcher.Constraint("Coincident", 13, 3, 3, 3),
    Sketcher.Constraint("Equal", 1, 3),
    Sketcher.Constraint("Equal", 3, 5),
    Sketcher.Constraint("Equal", 5, 7),
    Sketcher.Constraint("Equal", 13, 15),
    Sketcher.Constraint("Equal", 12, 2),
    Sketcher.Constraint("Radius", 1, Q("5.08 mm")),
    Sketcher.Constraint("Radius", 9, Q("2.54 mm")),
    Sketcher.Constraint("DistanceX", 0, 1, 0, 2, Q("15.24 mm")),
    Sketcher.Constraint("DistanceY", 0, 2, -1, 1, Q("2.7 mm")),
    Sketcher.Constraint("DistanceX", 1, 3, -1, 1, Q("332.502222 mm")),
])
pad7 = body7.newObject("PartDesign::Pad", "Pad006")
pad7.Profile = sketch7
pad7.Length = 270
body8 = doc.addObject("PartDesign::Body", "Body007")

# Sketch on XY plane
sketch8 = body8.newObject("Sketcher::SketchObject", "Sketch007")
sketch8.AttachmentSupport = (doc.getObject("XY_Plane007"), [""])
sketch8.MapMode = "FlatFace"
sketch8.addGeometry([
    Part.LineSegment(Vector(138.1, -2.7, 0), Vector(153.4, -2.7, 0)),  # 0
    Part.ArcOfCircle(Part.Circle(Vector(153.4, 2.4, 0), Vector(0, 0, 1), 5.1), math.radians(-90), math.radians(0)),  # 1
    Part.LineSegment(Vector(158.5, 2.4, 0), Vector(158.5, 17.6, 0)),  # 2
    Part.ArcOfCircle(Part.Circle(Vector(153.4, 17.6, 0), Vector(0, 0, 1), 5.1), math.radians(0), math.radians(90)),  # 3
    Part.LineSegment(Vector(153.4, 22.7, 0), Vector(138.1, 22.7, 0)),  # 4
    Part.ArcOfCircle(Part.Circle(Vector(138.1, 17.6, 0), Vector(0, 0, 1), 5.1), math.radians(90), math.radians(180)),  # 5
    Part.LineSegment(Vector(133.1, 17.6, 0), Vector(133.1, 2.4, 0)),  # 6
    Part.ArcOfCircle(Part.Circle(Vector(138.1, 2.4, 0), Vector(0, 0, 1), 5.1), math.radians(-180), math.radians(-90)),  # 7
    Part.LineSegment(Vector(153.4, -0.2, 0), Vector(138.1, -0.2, 0)),  # 8
    Part.ArcOfCircle(Part.Circle(Vector(138.1, 2.4, 0), Vector(0, 0, 1), 2.5), math.radians(-180), math.radians(-90)),  # 9
    Part.LineSegment(Vector(135.6, 2.4, 0), Vector(135.6, 17.6, 0)),  # 10
    Part.ArcOfCircle(Part.Circle(Vector(138.1, 17.6, 0), Vector(0, 0, 1), 2.5), math.radians(90), math.radians(180)),  # 11
    Part.LineSegment(Vector(138.1, 20.2, 0), Vector(153.4, 20.2, 0)),  # 12
    Part.ArcOfCircle(Part.Circle(Vector(153.4, 17.6, 0), Vector(0, 0, 1), 2.5), math.radians(0), math.radians(90)),  # 13
    Part.LineSegment(Vector(155.9, 17.6, 0), Vector(155.9, 2.4, 0)),  # 14
    Part.ArcOfCircle(Part.Circle(Vector(153.4, 2.4, 0), Vector(0, 0, 1), 2.5), math.radians(-90), math.radians(0)),  # 15
], False)
sketch8.addConstraint([
    Sketcher.Constraint("Tangent", 0, 2, 1, 1),
    Sketcher.Constraint("Tangent", 1, 2, 2, 1),
    Sketcher.Constraint("Tangent", 2, 2, 3, 1),
    Sketcher.Constraint("Tangent", 3, 2, 4, 1),
    Sketcher.Constraint("Tangent", 4, 2, 5, 1),
    Sketcher.Constraint("Tangent", 5, 2, 6, 1),
    Sketcher.Constraint("Tangent", 6, 2, 7, 1),
    Sketcher.Constraint("Tangent", 7, 2, 0, 1),
    Sketcher.Constraint("Tangent", 8, 2, 9, 2),
    Sketcher.Constraint("Tangent", 9, 1, 10, 1),
    Sketcher.Constraint("Tangent", 10, 2, 11, 2),
    Sketcher.Constraint("Tangent", 11, 1, 12, 1),
    Sketcher.Constraint("Tangent", 12, 2, 13, 2),
    Sketcher.Constraint("Tangent", 13, 1, 14, 1),
    Sketcher.Constraint("Tangent", 14, 2, 15, 2),
    Sketcher.Constraint("Tangent", 15, 1, 8, 1),
    Sketcher.Constraint("Horizontal", 0),
    Sketcher.Constraint("Vertical", 2),
    Sketcher.Constraint("Horizontal", 4),
    Sketcher.Constraint("Vertical", 6),
    Sketcher.Constraint("Horizontal", 8),
    Sketcher.Constraint("Vertical", 10),
    Sketcher.Constraint("Horizontal", 12),
    Sketcher.Constraint("Vertical", 14),
    Sketcher.Constraint("Coincident", 9, 3, 7, 3),
    Sketcher.Constraint("Coincident", 11, 3, 5, 3),
    Sketcher.Constraint("Coincident", 13, 3, 3, 3),
    Sketcher.Constraint("Equal", 1, 3),
    Sketcher.Constraint("Equal", 3, 5),
    Sketcher.Constraint("Equal", 5, 7),
    Sketcher.Constraint("Equal", 13, 15),
    Sketcher.Constraint("Equal", 12, 2),
    Sketcher.Constraint("Radius", 1, Q("5.08 mm")),
    Sketcher.Constraint("Radius", 9, Q("2.54 mm")),
    Sketcher.Constraint("DistanceX", 0, 1, 0, 2, Q("15.24 mm")),
    Sketcher.Constraint("DistanceY", 0, 2, -1, 1, Q("2.7 mm")),
    Sketcher.Constraint("DistanceX", -1, 1, 1, 3, Q("153.386667 mm")),
])
pad8 = body8.newObject("PartDesign::Pad", "Pad007")
pad8.Profile = sketch8
pad8.Length = 270

doc.recompute()
